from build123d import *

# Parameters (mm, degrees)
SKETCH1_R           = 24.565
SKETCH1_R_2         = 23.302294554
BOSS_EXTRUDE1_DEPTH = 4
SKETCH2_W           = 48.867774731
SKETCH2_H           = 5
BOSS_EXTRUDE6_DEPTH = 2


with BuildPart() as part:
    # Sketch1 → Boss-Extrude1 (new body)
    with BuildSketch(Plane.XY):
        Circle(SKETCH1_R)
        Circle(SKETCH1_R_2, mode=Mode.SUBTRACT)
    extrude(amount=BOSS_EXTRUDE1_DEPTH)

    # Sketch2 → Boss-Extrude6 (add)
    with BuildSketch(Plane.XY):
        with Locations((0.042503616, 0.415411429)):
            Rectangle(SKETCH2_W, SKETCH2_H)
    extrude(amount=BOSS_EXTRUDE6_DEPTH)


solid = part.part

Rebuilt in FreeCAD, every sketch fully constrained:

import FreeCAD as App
import Part
import Sketcher
from FreeCAD import Vector
Q = App.Units.Quantity


def add_polygon(sketch, points):
    """Adds a closed chain of lines whose ends are joined by coincident constraints."""
    first, n = sketch.GeometryCount, len(points)
    for a, b in zip(points, points[1:] + points[:1]):
        sketch.addGeometry(Part.LineSegment(App.Vector(*a, 0), App.Vector(*b, 0)), False)
    for i in range(n):
        sketch.addConstraint(Sketcher.Constraint("Coincident", first + i, 2, first + (i + 1) % n, 1))

doc = App.newDocument("Part")
body = doc.addObject("PartDesign::Body", "Body")

# Sketch on XY plane
sketch1 = body.newObject("Sketcher::SketchObject", "Sketch")
sketch1.AttachmentSupport = (doc.getObject("XY_Plane"), [""])
sketch1.MapMode = "FlatFace"
sketch1.addGeometry([
    Part.Circle(Vector(0, 0, 0), Vector(0, 0, 1), 25),
    Part.Circle(Vector(0, 0, 0), Vector(0, 0, 1), 23),
], False)
sketch1.addConstraint([
    Sketcher.Constraint("Coincident", 0, 3, -1, 1),
    Sketcher.Constraint("Coincident", 1, 3, -1, 1),
    Sketcher.Constraint("Diameter", 0, Q("49.13 mm")),
    Sketcher.Constraint("Diameter", 1, Q("46.604589 mm")),
])
pad1 = body.newObject("PartDesign::Pad", "Pad")
pad1.Profile = sketch1
pad1.Length = 4

# Sketch on XY plane
sketch2 = body.newObject("Sketcher::SketchObject", "Sketch001")
sketch2.AttachmentSupport = (doc.getObject("XY_Plane"), [""])
sketch2.MapMode = "FlatFace"
add_polygon(sketch2, [(-24, 3), (-24, -2), (24, -2), (24, 3)])  # lines 0-3
sketch2.addConstraint([
    Sketcher.Constraint("Vertical", 0),
    Sketcher.Constraint("Horizontal", 1),
    Sketcher.Constraint("Vertical", 2),
    Sketcher.Constraint("Horizontal", 3),
    Sketcher.Constraint("DistanceY", 0, 2, 0, 1, Q("5 mm")),
    Sketcher.Constraint("DistanceX", 1, 1, 1, 2, Q("48.867775 mm")),
    Sketcher.Constraint("DistanceY", 0, 2, -1, 1, Q("2.084589 mm")),
    Sketcher.Constraint("DistanceX", -1, 1, 1, 2, Q("24.476391 mm")),
])
pad2 = body.newObject("PartDesign::Pad", "Pad001")
pad2.Profile = sketch2
pad2.Length = 2

doc.recompute()
